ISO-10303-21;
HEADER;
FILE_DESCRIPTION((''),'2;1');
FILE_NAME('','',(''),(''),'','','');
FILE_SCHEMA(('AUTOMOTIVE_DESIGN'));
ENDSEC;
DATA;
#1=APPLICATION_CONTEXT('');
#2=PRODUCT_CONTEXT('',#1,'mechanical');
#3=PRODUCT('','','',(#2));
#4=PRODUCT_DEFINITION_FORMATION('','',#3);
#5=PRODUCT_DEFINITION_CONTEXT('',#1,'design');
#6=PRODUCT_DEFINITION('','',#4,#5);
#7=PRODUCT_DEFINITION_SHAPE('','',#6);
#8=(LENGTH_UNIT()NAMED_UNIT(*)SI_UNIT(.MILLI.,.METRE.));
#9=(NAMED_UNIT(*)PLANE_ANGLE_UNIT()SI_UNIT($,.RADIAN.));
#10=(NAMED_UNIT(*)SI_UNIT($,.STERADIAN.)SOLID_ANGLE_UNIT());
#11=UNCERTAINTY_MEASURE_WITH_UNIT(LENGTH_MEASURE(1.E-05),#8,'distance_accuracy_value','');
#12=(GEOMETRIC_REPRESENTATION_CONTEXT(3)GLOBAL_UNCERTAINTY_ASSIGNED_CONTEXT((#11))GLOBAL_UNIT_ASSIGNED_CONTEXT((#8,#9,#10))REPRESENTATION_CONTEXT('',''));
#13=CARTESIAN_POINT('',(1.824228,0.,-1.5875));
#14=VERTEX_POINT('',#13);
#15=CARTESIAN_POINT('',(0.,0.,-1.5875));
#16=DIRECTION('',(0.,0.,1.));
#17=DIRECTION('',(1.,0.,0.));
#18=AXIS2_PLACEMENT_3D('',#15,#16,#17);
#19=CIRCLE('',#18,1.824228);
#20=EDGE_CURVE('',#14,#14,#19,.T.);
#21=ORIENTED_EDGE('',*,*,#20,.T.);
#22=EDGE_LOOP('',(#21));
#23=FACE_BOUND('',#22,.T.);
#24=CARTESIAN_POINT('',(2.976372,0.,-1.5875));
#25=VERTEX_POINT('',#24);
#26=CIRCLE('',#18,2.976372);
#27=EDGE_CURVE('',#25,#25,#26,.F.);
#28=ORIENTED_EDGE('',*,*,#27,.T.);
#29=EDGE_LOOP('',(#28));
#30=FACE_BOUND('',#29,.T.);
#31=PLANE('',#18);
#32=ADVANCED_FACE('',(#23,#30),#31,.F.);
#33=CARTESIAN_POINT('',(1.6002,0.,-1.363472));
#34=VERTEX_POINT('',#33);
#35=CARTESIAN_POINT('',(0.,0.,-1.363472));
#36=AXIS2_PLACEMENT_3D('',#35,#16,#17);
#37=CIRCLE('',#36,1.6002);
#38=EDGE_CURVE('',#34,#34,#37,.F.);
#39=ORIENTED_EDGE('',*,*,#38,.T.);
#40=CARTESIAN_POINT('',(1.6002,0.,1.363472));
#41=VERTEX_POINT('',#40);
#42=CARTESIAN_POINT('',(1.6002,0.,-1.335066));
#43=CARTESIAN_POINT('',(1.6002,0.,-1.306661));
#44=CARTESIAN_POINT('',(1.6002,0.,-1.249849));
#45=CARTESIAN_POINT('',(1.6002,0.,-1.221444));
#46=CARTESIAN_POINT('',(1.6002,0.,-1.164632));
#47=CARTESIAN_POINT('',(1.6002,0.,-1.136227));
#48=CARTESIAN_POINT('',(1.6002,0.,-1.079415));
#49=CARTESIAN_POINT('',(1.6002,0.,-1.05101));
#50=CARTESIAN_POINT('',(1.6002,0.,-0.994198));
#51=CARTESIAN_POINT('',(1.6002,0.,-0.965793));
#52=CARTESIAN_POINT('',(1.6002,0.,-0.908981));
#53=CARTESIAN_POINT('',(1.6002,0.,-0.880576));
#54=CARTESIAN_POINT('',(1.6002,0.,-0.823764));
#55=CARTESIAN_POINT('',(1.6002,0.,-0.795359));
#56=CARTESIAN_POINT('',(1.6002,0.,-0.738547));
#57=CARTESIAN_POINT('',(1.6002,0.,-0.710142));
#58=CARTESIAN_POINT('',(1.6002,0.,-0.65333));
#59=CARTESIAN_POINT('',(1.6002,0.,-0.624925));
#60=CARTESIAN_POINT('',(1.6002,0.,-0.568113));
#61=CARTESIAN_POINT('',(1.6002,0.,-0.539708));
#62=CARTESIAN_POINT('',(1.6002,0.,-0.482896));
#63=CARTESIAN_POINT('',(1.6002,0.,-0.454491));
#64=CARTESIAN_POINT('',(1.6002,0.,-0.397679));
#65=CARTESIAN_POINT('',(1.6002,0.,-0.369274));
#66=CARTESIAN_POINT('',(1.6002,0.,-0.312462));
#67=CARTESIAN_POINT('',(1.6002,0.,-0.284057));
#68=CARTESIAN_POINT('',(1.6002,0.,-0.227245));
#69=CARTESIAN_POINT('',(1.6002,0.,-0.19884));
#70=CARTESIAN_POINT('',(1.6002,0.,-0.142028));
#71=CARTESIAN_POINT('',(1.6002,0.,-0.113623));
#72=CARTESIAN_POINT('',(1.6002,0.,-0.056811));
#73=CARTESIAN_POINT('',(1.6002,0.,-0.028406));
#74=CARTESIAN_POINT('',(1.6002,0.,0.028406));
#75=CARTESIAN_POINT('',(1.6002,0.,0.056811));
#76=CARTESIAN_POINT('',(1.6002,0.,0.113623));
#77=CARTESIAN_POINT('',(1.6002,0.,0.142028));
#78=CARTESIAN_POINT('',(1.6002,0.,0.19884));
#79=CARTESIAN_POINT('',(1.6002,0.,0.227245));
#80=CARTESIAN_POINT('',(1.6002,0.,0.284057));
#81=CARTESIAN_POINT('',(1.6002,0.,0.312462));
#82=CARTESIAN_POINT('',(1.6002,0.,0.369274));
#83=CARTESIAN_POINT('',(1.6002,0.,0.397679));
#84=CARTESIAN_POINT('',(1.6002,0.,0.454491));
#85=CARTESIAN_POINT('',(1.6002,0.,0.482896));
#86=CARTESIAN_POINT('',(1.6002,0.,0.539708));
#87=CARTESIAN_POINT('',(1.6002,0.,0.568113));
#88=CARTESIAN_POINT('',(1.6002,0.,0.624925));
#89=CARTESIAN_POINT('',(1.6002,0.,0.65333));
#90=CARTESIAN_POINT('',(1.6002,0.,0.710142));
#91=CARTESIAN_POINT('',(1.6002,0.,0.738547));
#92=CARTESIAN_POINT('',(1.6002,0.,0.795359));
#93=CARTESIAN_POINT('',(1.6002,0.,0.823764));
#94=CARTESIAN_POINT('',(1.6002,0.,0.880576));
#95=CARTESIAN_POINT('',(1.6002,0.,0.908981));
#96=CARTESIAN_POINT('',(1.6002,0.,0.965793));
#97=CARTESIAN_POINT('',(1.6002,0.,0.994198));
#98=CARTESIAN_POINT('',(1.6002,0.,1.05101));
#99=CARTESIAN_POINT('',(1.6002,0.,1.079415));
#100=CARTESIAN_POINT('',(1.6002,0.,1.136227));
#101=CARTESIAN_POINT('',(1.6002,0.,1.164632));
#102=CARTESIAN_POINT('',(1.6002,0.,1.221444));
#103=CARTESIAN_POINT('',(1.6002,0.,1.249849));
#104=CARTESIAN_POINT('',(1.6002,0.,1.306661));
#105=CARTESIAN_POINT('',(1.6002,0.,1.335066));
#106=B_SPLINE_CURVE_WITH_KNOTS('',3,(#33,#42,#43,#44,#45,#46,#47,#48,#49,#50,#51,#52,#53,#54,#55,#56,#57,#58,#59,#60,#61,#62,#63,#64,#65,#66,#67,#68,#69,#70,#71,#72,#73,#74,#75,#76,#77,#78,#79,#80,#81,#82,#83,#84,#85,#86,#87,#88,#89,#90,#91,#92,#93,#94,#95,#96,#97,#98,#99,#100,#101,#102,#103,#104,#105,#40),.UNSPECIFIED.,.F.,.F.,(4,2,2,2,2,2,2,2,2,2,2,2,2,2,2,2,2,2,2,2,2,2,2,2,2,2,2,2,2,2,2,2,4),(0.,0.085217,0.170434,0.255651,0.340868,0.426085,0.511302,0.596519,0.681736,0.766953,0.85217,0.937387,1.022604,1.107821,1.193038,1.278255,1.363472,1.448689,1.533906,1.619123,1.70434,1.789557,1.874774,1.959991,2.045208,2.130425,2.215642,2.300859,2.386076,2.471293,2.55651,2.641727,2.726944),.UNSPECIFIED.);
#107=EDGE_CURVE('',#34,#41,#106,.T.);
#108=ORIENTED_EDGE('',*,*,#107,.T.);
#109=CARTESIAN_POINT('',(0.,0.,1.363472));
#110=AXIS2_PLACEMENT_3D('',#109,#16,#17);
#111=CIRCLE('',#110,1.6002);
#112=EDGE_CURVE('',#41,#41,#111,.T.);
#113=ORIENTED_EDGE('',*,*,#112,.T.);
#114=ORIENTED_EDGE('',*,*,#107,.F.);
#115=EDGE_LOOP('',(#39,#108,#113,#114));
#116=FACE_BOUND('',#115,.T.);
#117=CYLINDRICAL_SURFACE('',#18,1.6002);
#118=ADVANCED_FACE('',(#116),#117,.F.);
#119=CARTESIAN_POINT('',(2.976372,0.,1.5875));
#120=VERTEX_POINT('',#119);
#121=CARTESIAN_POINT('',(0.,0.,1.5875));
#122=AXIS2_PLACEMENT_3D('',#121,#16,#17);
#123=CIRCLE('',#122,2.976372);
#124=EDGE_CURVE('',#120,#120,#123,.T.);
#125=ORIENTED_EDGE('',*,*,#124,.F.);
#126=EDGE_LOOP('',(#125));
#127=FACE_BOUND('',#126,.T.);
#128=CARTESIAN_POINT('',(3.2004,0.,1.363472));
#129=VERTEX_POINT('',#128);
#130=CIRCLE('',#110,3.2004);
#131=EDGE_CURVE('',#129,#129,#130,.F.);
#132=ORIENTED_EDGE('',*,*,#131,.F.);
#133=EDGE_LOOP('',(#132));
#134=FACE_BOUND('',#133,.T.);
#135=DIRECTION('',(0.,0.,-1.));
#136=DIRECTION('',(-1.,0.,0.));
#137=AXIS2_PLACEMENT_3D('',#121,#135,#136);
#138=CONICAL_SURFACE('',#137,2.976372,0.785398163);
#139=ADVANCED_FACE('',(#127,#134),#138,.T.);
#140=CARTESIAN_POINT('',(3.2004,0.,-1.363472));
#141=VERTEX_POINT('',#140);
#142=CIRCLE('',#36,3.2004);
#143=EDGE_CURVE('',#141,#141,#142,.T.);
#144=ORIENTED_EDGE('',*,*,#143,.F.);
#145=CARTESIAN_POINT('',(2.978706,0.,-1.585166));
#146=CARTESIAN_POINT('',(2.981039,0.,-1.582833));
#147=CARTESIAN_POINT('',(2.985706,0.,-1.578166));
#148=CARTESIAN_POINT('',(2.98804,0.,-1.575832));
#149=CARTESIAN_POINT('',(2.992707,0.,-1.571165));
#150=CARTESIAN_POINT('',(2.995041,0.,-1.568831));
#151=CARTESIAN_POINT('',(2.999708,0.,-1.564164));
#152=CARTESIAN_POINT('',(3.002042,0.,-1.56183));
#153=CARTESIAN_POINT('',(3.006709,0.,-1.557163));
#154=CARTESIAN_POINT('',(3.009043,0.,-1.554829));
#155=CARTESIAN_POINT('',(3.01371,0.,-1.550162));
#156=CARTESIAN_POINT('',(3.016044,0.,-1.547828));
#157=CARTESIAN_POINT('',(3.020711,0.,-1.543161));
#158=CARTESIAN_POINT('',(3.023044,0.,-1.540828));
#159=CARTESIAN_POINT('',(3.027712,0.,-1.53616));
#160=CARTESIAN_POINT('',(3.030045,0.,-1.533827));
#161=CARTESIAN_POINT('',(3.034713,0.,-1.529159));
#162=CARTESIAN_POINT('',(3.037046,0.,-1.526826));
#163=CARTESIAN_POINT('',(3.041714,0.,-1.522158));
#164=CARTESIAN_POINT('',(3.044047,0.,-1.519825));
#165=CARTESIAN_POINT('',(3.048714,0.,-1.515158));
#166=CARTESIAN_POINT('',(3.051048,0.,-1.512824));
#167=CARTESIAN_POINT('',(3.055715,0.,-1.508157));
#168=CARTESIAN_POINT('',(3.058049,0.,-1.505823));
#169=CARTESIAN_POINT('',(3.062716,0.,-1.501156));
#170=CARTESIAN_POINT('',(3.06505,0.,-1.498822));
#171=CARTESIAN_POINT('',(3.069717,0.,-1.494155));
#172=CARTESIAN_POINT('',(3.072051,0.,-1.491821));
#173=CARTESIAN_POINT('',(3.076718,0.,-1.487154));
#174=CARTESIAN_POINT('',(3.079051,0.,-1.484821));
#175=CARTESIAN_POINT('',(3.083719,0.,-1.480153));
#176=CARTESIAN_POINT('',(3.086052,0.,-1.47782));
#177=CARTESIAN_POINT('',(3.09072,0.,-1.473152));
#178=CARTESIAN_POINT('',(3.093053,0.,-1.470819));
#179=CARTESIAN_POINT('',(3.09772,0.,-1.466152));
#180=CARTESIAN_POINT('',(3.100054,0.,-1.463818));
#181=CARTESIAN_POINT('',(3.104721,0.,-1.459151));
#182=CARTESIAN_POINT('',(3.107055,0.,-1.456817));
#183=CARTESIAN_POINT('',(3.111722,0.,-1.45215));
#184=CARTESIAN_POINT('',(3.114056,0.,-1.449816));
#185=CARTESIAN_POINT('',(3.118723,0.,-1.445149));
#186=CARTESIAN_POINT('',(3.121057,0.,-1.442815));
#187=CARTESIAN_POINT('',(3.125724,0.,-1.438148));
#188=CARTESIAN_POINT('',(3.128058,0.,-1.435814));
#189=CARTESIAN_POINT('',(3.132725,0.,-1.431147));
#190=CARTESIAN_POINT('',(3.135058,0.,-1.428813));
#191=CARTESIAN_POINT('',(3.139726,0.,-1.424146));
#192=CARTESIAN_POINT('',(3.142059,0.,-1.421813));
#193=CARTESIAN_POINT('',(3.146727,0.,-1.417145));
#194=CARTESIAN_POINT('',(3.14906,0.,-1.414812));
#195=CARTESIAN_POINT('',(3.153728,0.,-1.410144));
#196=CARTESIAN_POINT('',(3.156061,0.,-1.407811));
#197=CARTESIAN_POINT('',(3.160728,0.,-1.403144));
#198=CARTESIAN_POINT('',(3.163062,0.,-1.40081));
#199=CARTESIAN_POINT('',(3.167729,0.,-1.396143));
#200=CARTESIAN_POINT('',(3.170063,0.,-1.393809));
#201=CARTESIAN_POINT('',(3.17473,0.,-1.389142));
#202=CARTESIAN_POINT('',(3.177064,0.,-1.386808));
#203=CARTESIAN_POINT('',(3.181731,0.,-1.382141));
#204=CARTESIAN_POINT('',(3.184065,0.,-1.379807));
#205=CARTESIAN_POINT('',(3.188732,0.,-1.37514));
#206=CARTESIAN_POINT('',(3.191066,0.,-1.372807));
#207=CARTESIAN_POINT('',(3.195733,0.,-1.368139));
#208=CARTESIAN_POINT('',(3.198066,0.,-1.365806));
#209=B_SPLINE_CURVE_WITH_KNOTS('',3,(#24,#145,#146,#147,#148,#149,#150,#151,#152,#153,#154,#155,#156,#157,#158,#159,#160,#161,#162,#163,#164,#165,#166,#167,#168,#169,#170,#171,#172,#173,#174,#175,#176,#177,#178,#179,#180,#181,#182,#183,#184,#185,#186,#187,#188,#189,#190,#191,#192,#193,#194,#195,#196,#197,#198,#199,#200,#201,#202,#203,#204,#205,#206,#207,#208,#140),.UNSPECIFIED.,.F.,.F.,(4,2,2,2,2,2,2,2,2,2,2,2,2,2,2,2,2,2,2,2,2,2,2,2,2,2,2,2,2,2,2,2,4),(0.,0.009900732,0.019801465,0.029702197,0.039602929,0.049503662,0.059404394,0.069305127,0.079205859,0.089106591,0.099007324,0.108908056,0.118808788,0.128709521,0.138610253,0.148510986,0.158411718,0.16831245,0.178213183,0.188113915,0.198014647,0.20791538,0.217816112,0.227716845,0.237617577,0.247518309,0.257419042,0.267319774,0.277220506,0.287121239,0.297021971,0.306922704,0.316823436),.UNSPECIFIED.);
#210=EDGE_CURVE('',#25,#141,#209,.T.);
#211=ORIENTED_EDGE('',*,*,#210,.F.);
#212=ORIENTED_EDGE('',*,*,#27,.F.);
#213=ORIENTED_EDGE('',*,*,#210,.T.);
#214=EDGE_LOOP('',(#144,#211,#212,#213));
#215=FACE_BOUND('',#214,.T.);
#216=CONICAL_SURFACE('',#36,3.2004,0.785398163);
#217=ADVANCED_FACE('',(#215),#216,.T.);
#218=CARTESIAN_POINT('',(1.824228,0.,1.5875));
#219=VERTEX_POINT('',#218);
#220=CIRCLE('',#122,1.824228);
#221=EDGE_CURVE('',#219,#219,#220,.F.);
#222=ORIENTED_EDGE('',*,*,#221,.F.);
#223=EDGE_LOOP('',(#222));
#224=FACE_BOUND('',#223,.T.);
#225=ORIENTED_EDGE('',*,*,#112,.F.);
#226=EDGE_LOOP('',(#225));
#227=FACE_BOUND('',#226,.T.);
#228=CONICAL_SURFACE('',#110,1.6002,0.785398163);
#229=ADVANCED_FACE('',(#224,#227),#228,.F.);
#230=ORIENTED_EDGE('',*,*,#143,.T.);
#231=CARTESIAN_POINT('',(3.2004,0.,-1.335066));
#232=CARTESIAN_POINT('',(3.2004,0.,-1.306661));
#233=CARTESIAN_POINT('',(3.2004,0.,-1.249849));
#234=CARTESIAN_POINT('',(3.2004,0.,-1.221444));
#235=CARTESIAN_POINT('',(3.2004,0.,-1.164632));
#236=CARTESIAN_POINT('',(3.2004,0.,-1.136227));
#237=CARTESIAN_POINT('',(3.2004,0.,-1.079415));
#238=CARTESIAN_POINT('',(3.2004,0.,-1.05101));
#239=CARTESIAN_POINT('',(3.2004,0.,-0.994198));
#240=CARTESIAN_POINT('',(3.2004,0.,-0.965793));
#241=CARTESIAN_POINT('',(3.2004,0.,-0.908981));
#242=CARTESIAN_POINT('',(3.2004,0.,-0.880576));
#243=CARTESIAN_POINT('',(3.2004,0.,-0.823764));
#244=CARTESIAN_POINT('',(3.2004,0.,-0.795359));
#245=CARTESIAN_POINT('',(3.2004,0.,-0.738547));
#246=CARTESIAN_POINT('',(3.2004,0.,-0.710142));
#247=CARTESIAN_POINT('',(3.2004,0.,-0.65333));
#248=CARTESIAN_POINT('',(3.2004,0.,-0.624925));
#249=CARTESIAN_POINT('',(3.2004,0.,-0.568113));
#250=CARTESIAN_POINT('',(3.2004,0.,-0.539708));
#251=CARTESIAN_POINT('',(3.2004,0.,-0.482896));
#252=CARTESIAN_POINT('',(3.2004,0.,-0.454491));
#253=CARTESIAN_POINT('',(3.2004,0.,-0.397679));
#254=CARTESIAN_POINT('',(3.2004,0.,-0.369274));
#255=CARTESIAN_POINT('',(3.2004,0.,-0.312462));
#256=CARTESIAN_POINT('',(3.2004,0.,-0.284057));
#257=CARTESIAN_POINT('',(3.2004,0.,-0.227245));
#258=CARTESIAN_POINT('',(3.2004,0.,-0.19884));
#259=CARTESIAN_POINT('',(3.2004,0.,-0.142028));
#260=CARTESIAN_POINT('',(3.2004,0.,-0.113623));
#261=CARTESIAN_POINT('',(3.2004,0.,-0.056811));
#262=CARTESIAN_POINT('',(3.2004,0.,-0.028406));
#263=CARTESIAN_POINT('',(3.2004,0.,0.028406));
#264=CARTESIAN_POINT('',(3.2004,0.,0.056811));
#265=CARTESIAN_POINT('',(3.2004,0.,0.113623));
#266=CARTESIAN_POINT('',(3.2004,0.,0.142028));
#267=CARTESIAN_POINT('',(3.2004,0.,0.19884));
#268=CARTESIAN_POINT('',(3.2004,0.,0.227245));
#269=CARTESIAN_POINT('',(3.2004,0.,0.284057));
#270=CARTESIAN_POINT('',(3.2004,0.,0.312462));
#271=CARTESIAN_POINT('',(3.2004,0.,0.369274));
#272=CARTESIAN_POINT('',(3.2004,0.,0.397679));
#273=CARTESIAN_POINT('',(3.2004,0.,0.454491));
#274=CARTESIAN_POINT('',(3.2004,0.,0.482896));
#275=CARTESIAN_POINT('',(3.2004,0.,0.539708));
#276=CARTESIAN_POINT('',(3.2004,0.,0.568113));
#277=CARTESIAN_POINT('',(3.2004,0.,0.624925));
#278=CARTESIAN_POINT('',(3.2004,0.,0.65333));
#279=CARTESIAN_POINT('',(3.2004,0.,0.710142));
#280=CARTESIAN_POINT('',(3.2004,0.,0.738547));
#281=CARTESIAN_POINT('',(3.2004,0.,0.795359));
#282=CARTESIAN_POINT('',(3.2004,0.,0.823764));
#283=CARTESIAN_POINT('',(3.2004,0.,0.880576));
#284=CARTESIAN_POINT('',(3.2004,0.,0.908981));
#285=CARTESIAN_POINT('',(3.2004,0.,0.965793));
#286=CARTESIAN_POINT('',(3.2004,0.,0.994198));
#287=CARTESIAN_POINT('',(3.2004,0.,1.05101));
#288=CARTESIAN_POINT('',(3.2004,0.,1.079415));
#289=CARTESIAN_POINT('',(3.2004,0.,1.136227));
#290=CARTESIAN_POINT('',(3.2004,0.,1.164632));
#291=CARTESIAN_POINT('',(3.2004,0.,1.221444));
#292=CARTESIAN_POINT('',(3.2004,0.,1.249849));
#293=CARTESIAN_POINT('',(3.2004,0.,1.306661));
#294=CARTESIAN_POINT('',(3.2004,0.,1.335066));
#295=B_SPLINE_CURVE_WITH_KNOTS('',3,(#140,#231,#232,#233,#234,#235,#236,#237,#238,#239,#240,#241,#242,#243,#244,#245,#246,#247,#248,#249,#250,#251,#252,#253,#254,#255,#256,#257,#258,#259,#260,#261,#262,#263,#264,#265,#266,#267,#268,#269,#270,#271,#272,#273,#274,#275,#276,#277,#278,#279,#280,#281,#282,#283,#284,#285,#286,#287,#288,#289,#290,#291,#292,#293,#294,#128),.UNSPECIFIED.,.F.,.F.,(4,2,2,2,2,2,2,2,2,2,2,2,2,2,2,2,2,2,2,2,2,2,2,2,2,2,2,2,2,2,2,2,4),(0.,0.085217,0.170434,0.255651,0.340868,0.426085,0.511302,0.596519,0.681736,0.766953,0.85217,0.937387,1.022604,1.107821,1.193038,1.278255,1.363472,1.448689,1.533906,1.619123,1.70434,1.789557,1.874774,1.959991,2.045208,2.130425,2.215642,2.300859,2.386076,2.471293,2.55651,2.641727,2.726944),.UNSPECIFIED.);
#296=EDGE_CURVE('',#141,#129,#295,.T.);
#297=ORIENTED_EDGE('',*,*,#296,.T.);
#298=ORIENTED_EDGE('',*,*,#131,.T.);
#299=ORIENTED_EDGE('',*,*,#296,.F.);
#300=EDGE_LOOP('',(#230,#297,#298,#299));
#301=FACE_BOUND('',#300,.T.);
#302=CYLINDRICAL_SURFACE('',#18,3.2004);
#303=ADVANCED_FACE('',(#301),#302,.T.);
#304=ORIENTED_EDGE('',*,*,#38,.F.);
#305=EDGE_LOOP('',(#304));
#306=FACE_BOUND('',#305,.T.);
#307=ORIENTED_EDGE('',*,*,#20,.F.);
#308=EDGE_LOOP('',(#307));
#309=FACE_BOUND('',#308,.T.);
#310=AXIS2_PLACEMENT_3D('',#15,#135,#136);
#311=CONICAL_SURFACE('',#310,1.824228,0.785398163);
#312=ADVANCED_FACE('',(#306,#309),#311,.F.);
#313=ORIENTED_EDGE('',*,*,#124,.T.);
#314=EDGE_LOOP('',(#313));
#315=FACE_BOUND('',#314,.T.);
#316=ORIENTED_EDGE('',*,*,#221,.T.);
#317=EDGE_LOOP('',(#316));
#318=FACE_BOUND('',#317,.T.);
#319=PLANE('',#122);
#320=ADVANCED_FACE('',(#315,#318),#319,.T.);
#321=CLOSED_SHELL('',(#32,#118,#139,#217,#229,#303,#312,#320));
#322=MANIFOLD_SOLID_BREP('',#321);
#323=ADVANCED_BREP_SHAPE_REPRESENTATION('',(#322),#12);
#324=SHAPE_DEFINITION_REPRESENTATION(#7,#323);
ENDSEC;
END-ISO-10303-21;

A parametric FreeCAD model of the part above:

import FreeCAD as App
import Part
import Sketcher
from FreeCAD import Vector
Q = App.Units.Quantity


def edges_at(feature, points):
    """Names of the edges that pass closest to the given points."""
    edges = feature.Shape.Edges
    near = lambda p: min(range(len(edges)), key=lambda i: edges[i].distToShape(Part.Vertex(*p))[0])
    return sorted({f"Edge{near(p) + 1}" for p in points})

doc = App.newDocument("Part")
params = doc.addObject("Spreadsheet::Sheet", "Params")
for row, (alias, value) in enumerate([
    ("sketch1_diameter", "0.252 in"),
    ("sketch1_diameter2", "0.126 in"),
    ("pad1_length", "0.0625 in"),
    ("pad1_length2", "0.0625 in"),
    ("chamfer_size", "0.224028 mm"),
], start=1):
    params.set(f"A{row}", alias)
    params.set(f"B{row}", "=" + value)
    params.setAlias(f"B{row}", alias)

body = doc.addObject("PartDesign::Body", "Body")

sketch1 = body.newObject("Sketcher::SketchObject", "Sketch")
sketch1.AttachmentSupport = (doc.getObject("XY_Plane"), [""])
sketch1.MapMode = "FlatFace"
sketch1.addGeometry([
    Part.Circle(Vector(0, 0, 0), Vector(0, 0, 1), 3.2),
    Part.Circle(Vector(0, 0, 0), Vector(0, 0, 1), 1.6),
], False)
sketch1.addConstraint([
    Sketcher.Constraint("Coincident", 0, 3, -1, 1),
    Sketcher.Constraint("Coincident", 1, 3, -1, 1),
    Sketcher.Constraint("Diameter", 0, Q("0.252 in")),
    Sketcher.Constraint("Diameter", 1, Q("0.126 in")),
])
sketch1.setExpression("Constraints[2]", "Params.sketch1_diameter")
sketch1.setExpression("Constraints[3]", "Params.sketch1_diameter2")
pad1 = body.newObject("PartDesign::Pad", "Pad")
pad1.Profile = sketch1
pad1.Type = "TwoLengths"
pad1.setExpression("Length", "Params.pad1_length")
pad1.setExpression("Length2", "Params.pad1_length2")
doc.recompute()

chamfer = body.newObject("PartDesign::Chamfer", "Chamfer")
chamfer.Base = (pad1, edges_at(pad1, [
    (-3.2, 0, -1.587),
    (-1.6, 0, -1.587),
    (-3.2, 0, 1.587),
    (-1.6, 0, 1.587),
]))
chamfer.setExpression("Size", "Params.chamfer_size")

doc.recompute()
